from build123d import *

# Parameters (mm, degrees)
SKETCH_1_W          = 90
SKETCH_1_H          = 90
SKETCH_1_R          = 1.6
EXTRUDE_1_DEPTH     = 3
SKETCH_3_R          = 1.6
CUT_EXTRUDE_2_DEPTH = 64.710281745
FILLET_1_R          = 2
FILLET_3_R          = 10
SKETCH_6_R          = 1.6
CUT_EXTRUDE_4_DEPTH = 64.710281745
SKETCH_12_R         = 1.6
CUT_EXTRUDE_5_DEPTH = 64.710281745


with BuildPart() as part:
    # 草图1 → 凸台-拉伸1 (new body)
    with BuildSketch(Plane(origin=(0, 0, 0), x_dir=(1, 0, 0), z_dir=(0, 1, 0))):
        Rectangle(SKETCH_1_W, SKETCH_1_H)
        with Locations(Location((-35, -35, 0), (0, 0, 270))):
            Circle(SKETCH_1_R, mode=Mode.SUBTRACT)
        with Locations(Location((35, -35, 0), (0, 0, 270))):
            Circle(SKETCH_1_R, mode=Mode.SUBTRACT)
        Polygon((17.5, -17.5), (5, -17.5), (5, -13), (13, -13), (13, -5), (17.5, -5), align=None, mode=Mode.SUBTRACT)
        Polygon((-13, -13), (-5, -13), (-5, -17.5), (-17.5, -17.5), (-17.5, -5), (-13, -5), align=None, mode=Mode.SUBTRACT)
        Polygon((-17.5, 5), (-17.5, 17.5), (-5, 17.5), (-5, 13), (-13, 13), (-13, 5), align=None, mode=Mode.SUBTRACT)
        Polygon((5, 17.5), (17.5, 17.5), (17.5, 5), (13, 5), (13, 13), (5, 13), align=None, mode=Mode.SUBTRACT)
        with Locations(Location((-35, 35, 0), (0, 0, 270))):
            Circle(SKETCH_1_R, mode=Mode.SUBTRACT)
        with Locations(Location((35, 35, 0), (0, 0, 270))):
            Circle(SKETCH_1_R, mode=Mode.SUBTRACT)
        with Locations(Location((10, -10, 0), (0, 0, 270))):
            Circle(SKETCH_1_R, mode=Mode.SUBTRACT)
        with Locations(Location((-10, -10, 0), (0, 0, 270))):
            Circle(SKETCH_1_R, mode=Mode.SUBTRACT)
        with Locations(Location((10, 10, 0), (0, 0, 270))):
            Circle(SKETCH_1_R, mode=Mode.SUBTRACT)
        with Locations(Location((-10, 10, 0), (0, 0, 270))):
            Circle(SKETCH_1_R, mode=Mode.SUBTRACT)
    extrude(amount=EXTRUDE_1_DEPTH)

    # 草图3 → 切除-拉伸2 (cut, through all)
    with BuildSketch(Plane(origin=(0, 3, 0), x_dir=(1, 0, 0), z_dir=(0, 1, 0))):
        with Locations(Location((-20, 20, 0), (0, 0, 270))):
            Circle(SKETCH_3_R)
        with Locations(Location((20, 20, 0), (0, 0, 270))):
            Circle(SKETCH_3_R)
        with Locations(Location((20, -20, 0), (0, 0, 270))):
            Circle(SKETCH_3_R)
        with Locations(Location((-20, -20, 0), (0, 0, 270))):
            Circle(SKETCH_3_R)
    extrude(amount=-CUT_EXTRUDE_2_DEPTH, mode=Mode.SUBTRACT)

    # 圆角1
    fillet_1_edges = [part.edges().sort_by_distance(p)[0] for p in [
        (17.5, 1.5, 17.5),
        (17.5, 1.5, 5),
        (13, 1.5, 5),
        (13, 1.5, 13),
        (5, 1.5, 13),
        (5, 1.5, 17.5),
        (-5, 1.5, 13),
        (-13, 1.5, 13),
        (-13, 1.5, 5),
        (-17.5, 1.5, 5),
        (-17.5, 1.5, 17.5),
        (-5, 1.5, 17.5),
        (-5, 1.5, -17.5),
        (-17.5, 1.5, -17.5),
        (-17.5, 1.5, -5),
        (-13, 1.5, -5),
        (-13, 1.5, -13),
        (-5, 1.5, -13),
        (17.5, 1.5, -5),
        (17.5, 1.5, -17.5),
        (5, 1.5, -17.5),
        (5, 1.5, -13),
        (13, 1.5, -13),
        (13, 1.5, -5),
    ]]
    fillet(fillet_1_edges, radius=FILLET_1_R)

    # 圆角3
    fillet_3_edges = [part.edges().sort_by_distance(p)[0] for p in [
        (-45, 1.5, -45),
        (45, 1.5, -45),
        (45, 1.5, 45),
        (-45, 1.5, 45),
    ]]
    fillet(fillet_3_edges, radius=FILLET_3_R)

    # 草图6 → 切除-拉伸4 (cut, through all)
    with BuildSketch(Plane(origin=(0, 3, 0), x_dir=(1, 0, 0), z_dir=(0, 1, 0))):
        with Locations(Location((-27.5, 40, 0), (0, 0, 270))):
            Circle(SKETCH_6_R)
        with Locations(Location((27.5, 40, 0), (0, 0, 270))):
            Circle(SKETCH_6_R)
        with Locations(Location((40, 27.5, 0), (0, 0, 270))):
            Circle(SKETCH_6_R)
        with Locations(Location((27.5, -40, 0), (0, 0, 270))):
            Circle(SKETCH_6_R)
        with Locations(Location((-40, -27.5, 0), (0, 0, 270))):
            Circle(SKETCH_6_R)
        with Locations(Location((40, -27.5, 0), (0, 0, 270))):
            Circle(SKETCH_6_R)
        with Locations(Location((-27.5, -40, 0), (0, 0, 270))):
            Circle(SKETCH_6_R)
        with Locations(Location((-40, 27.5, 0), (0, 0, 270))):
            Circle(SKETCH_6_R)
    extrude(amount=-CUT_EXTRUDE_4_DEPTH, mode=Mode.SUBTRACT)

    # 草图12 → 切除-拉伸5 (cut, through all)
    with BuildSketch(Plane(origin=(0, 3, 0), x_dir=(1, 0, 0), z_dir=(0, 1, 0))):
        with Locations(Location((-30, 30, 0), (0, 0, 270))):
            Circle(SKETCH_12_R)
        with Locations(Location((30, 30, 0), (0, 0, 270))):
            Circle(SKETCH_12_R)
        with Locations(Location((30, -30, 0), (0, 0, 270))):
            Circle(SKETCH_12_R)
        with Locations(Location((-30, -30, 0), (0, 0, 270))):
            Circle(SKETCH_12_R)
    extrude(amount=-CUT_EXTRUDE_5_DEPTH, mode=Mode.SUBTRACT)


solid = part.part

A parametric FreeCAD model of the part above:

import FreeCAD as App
import Part
import Sketcher

V = App.Vector
Q = App.Units.Quantity


def edges_at(feature, points):
    """Names of the edges that pass closest to the given points."""
    edges = feature.Shape.Edges
    near = lambda p: min(range(len(edges)), key=lambda i: edges[i].distToShape(Part.Vertex(*p))[0])
    return sorted({f"Edge{near(p) + 1}" for p in points})

doc = App.newDocument("Part")
body = doc.addObject("PartDesign::Body", "Body")

sketch1 = body.newObject("Sketcher::SketchObject", "Sketch")
sketch1.AttachmentSupport = (doc.getObject("XZ_Plane"), [""])
sketch1.MapMode = "FlatFace"
sketch1.addGeometry(Part.LineSegment(V(-45, -45, 0), V(-45, 45, 0)), False)
sketch1.addGeometry(Part.LineSegment(V(-45, 45, 0), V(45, 45, 0)), False)
sketch1.addGeometry(Part.LineSegment(V(45, 45, 0), V(45, -45, 0)), False)
sketch1.addGeometry(Part.LineSegment(V(45, -45, 0), V(-45, -45, 0)), False)
sketch1.addGeometry(Part.Circle(V(-35, 35, 0), V(0, 0, 1), 1.6), False)
sketch1.addGeometry(Part.LineSegment(V(-13, 5, 0), V(-13, 13, 0)), False)
sketch1.addGeometry(Part.LineSegment(V(-13, 13, 0), V(-5, 13, 0)), False)
sketch1.addGeometry(Part.LineSegment(V(-5, 13, 0), V(-5, 17.5, 0)), False)
sketch1.addGeometry(Part.LineSegment(V(-5, 17.5, 0), V(-17.5, 17.5, 0)), False)
sketch1.addGeometry(Part.LineSegment(V(-17.5, 17.5, 0), V(-17.5, 5, 0)), False)
sketch1.addGeometry(Part.LineSegment(V(-17.5, 5, 0), V(-13, 5, 0)), False)
sketch1.addGeometry(Part.Circle(V(-10, 10, 0), V(0, 0, 1), 1.6), False)
sketch1.addGeometry(Part.Circle(V(35, 35, 0), V(0, 0, 1), 1.6), False)
sketch1.addGeometry(Part.LineSegment(V(17.5, 5, 0), V(17.5, 17.5, 0)), False)
sketch1.addGeometry(Part.LineSegment(V(17.5, 17.5, 0), V(5, 17.5, 0)), False)
sketch1.addGeometry(Part.LineSegment(V(5, 17.5, 0), V(5, 13, 0)), False)
sketch1.addGeometry(Part.LineSegment(V(5, 13, 0), V(13, 13, 0)), False)
sketch1.addGeometry(Part.LineSegment(V(13, 13, 0), V(13, 5, 0)), False)
sketch1.addGeometry(Part.LineSegment(V(13, 5, 0), V(17.5, 5, 0)), False)
sketch1.addGeometry(Part.Circle(V(10, 10, 0), V(0, 0, 1), 1.6), False)
sketch1.addGeometry(Part.Circle(V(-10, -10, 0), V(0, 0, 1), 1.6), False)
sketch1.addGeometry(Part.LineSegment(V(-13, -5, 0), V(-17.5, -5, 0)), False)
sketch1.addGeometry(Part.LineSegment(V(-17.5, -5, 0), V(-17.5, -17.5, 0)), False)
sketch1.addGeometry(Part.LineSegment(V(-17.5, -17.5, 0), V(-5, -17.5, 0)), False)
sketch1.addGeometry(Part.LineSegment(V(-5, -17.5, 0), V(-5, -13, 0)), False)
sketch1.addGeometry(Part.LineSegment(V(-5, -13, 0), V(-13, -13, 0)), False)
sketch1.addGeometry(Part.LineSegment(V(-13, -13, 0), V(-13, -5, 0)), False)
sketch1.addGeometry(Part.Circle(V(-35, -35, 0), V(0, 0, 1), 1.6), False)
sketch1.addGeometry(Part.Circle(V(10, -10, 0), V(0, 0, 1), 1.6), False)
sketch1.addGeometry(Part.LineSegment(V(5, -13, 0), V(5, -17.5, 0)), False)
sketch1.addGeometry(Part.LineSegment(V(5, -17.5, 0), V(17.5, -17.5, 0)), False)
sketch1.addGeometry(Part.LineSegment(V(17.5, -17.5, 0), V(17.5, -5, 0)), False)
sketch1.addGeometry(Part.LineSegment(V(17.5, -5, 0), V(13, -5, 0)), False)
sketch1.addGeometry(Part.LineSegment(V(13, -5, 0), V(13, -13, 0)), False)
sketch1.addGeometry(Part.LineSegment(V(13, -13, 0), V(5, -13, 0)), False)
sketch1.addGeometry(Part.Circle(V(35, -35, 0), V(0, 0, 1), 1.6), False)
sketch1.addConstraint(Sketcher.Constraint("Coincident", 0, 2, 1, 1))
sketch1.addConstraint(Sketcher.Constraint("Coincident", 1, 2, 2, 1))
sketch1.addConstraint(Sketcher.Constraint("Coincident", 2, 2, 3, 1))
sketch1.addConstraint(Sketcher.Constraint("Coincident", 3, 2, 0, 1))
sketch1.addConstraint(Sketcher.Constraint("Coincident", 5, 2, 6, 1))
sketch1.addConstraint(Sketcher.Constraint("Coincident", 6, 2, 7, 1))
sketch1.addConstraint(Sketcher.Constraint("Coincident", 7, 2, 8, 1))
sketch1.addConstraint(Sketcher.Constraint("Coincident", 8, 2, 9, 1))
sketch1.addConstraint(Sketcher.Constraint("Coincident", 9, 2, 10, 1))
sketch1.addConstraint(Sketcher.Constraint("Coincident", 10, 2, 5, 1))
sketch1.addConstraint(Sketcher.Constraint("Coincident", 13, 2, 14, 1))
sketch1.addConstraint(Sketcher.Constraint("Coincident", 14, 2, 15, 1))
sketch1.addConstraint(Sketcher.Constraint("Coincident", 15, 2, 16, 1))
sketch1.addConstraint(Sketcher.Constraint("Coincident", 16, 2, 17, 1))
sketch1.addConstraint(Sketcher.Constraint("Coincident", 17, 2, 18, 1))
sketch1.addConstraint(Sketcher.Constraint("Coincident", 18, 2, 13, 1))
sketch1.addConstraint(Sketcher.Constraint("Coincident", 21, 2, 22, 1))
sketch1.addConstraint(Sketcher.Constraint("Coincident", 22, 2, 23, 1))
sketch1.addConstraint(Sketcher.Constraint("Coincident", 23, 2, 24, 1))
sketch1.addConstraint(Sketcher.Constraint("Coincident", 24, 2, 25, 1))
sketch1.addConstraint(Sketcher.Constraint("Coincident", 25, 2, 26, 1))
sketch1.addConstraint(Sketcher.Constraint("Coincident", 26, 2, 21, 1))
sketch1.addConstraint(Sketcher.Constraint("Coincident", 29, 2, 30, 1))
sketch1.addConstraint(Sketcher.Constraint("Coincident", 30, 2, 31, 1))
sketch1.addConstraint(Sketcher.Constraint("Coincident", 31, 2, 32, 1))
sketch1.addConstraint(Sketcher.Constraint("Coincident", 32, 2, 33, 1))
sketch1.addConstraint(Sketcher.Constraint("Coincident", 33, 2, 34, 1))
sketch1.addConstraint(Sketcher.Constraint("Coincident", 34, 2, 29, 1))
sketch1.addConstraint(Sketcher.Constraint("Vertical", 0))
sketch1.addConstraint(Sketcher.Constraint("Horizontal", 1))
sketch1.addConstraint(Sketcher.Constraint("Vertical", 2))
sketch1.addConstraint(Sketcher.Constraint("Horizontal", 3))
sketch1.addConstraint(Sketcher.Constraint("Vertical", 5))
sketch1.addConstraint(Sketcher.Constraint("Horizontal", 6))
sketch1.addConstraint(Sketcher.Constraint("Vertical", 7))
sketch1.addConstraint(Sketcher.Constraint("Horizontal", 8))
sketch1.addConstraint(Sketcher.Constraint("Vertical", 9))
sketch1.addConstraint(Sketcher.Constraint("Horizontal", 10))
sketch1.addConstraint(Sketcher.Constraint("Vertical", 13))
sketch1.addConstraint(Sketcher.Constraint("Horizontal", 14))
sketch1.addConstraint(Sketcher.Constraint("Vertical", 15))
sketch1.addConstraint(Sketcher.Constraint("Horizontal", 16))
sketch1.addConstraint(Sketcher.Constraint("Vertical", 17))
sketch1.addConstraint(Sketcher.Constraint("Horizontal", 18))
sketch1.addConstraint(Sketcher.Constraint("Horizontal", 21))
sketch1.addConstraint(Sketcher.Constraint("Vertical", 22))
sketch1.addConstraint(Sketcher.Constraint("Horizontal", 23))
sketch1.addConstraint(Sketcher.Constraint("Vertical", 24))
sketch1.addConstraint(Sketcher.Constraint("Horizontal", 25))
sketch1.addConstraint(Sketcher.Constraint("Vertical", 26))
sketch1.addConstraint(Sketcher.Constraint("Vertical", 29))
sketch1.addConstraint(Sketcher.Constraint("Horizontal", 30))
sketch1.addConstraint(Sketcher.Constraint("Vertical", 31))
sketch1.addConstraint(Sketcher.Constraint("Horizontal", 32))
sketch1.addConstraint(Sketcher.Constraint("Vertical", 33))
sketch1.addConstraint(Sketcher.Constraint("Horizontal", 34))
sketch1.addConstraint(Sketcher.Constraint("Equal", 4, 11))
sketch1.addConstraint(Sketcher.Constraint("Equal", 11, 12))
sketch1.addConstraint(Sketcher.Constraint("Equal", 12, 19))
sketch1.addConstraint(Sketcher.Constraint("Equal", 19, 20))
sketch1.addConstraint(Sketcher.Constraint("Equal", 20, 27))
sketch1.addConstraint(Sketcher.Constraint("Equal", 27, 28))
sketch1.addConstraint(Sketcher.Constraint("Equal", 28, 35))
sketch1.addConstraint(Sketcher.Constraint("Symmetric", 19, 3, 20, 3, -1, 1))
sketch1.addConstraint(Sketcher.Constraint("Symmetric", 12, 3, 27, 3, -1, 1))
sketch1.addConstraint(Sketcher.Constraint("Symmetric", 11, 3, 28, 3, -1, 1))
sketch1.addConstraint(Sketcher.Constraint("Symmetric", 4, 3, 35, 3, -1, 1))
sketch1.addConstraint(Sketcher.Constraint("Symmetric", 0, 2, 2, 2, -1, 1))
sketch1.addConstraint(Sketcher.Constraint("Symmetric", 18, 2, 21, 2, -1, 1))
sketch1.addConstraint(Sketcher.Constraint("Symmetric", 14, 2, 23, 2, -1, 1))
sketch1.addConstraint(Sketcher.Constraint("Symmetric", 16, 2, 25, 2, -1, 1))
sketch1.addConstraint(Sketcher.Constraint("Symmetric", 7, 2, 29, 2, -1, 1))
sketch1.addConstraint(Sketcher.Constraint("Symmetric", 9, 2, 31, 2, -1, 1))
sketch1.addConstraint(Sketcher.Constraint("Symmetric", 5, 2, 33, 2, -1, 1))
sketch1.addConstraint(Sketcher.Constraint("Symmetric", 4, 3, 12, 3, -2))
sketch1.addConstraint(Sketcher.Constraint("Symmetric", 11, 3, 19, 3, -2))
sketch1.addConstraint(Sketcher.Constraint("Symmetric", 8, 2, 13, 2, -2))
sketch1.addConstraint(Sketcher.Constraint("Symmetric", 6, 2, 15, 2, -2))
sketch1.addConstraint(Sketcher.Constraint("Symmetric", 10, 2, 17, 2, -2))
sketch1.addConstraint(Sketcher.Constraint("Equal", 3, 0))
sketch1.addConstraint(Sketcher.Constraint("Equal", 34, 5))
sketch1.addConstraint(Sketcher.Constraint("Equal", 32, 7))
sketch1.addConstraint(Sketcher.Constraint("Diameter", 4, Q("3.2 mm")))
sketch1.addConstraint(Sketcher.Constraint("DistanceX", 1, 1, 1, 2, Q("90 mm")))
sketch1.addConstraint(Sketcher.Constraint("DistanceX", 6, 1, 6, 2, Q("8 mm")))
sketch1.addConstraint(Sketcher.Constraint("DistanceX", 8, 2, 8, 1, Q("12.5 mm")))
sketch1.addConstraint(Sketcher.Constraint("DistanceX", 4, 3, -1, 1, Q("35 mm")))
sketch1.addConstraint(Sketcher.Constraint("DistanceY", -1, 1, 4, 3, Q("35 mm")))
sketch1.addConstraint(Sketcher.Constraint("DistanceX", 11, 3, -1, 1, Q("10 mm")))
sketch1.addConstraint(Sketcher.Constraint("DistanceY", -1, 1, 11, 3, Q("10 mm")))
sketch1.addConstraint(Sketcher.Constraint("DistanceX", 5, 2, -1, 1, Q("13 mm")))
sketch1.addConstraint(Sketcher.Constraint("DistanceY", -1, 1, 5, 2, Q("13 mm")))
pad1 = body.newObject("PartDesign::Pad", "Pad")
pad1.Profile = sketch1
pad1.Length = 3
pad1.Reversed = True

sketch2 = body.newObject("Sketcher::SketchObject", "Sketch001")
sketch2.AttachmentSupport = (doc.getObject("XZ_Plane"), [""])
sketch2.MapMode = "FlatFace"
sketch2.AttachmentOffset = App.Placement(V(0, 0, -3), App.Rotation())
sketch2.addGeometry(Part.Circle(V(-20, -20, 0), V(0, 0, 1), 1.6), False)
sketch2.addGeometry(Part.Circle(V(20, -20, 0), V(0, 0, 1), 1.6), False)
sketch2.addGeometry(Part.Circle(V(20, 20, 0), V(0, 0, 1), 1.6), False)
sketch2.addGeometry(Part.Circle(V(-20, 20, 0), V(0, 0, 1), 1.6), False)
sketch2.addConstraint(Sketcher.Constraint("Equal", 0, 1))
sketch2.addConstraint(Sketcher.Constraint("Equal", 1, 2))
sketch2.addConstraint(Sketcher.Constraint("Equal", 2, 3))
sketch2.addConstraint(Sketcher.Constraint("Symmetric", 0, 3, 2, 3, -1, 1))
sketch2.addConstraint(Sketcher.Constraint("Symmetric", 1, 3, 3, 3, -1, 1))
sketch2.addConstraint(Sketcher.Constraint("Symmetric", 0, 3, 1, 3, -2))
sketch2.addConstraint(Sketcher.Constraint("Diameter", 0, Q("3.2 mm")))
sketch2.addConstraint(Sketcher.Constraint("DistanceX", 0, 3, -1, 1, Q("20 mm")))
sketch2.addConstraint(Sketcher.Constraint("DistanceY", 0, 3, -1, 1, Q("20 mm")))
pocket1 = body.newObject("PartDesign::Pocket", "Pocket")
pocket1.Profile = sketch2
pocket1.Type = "ThroughAll"
pocket1.Reversed = True
doc.recompute()

fillet = body.newObject("PartDesign::Fillet", "Fillet")
fillet.Base = (pocket1, edges_at(pocket1, [
    (17.5, 1.5, 17.5),
    (17.5, 1.5, 5),
    (13, 1.5, 5),
    (13, 1.5, 13),
    (5, 1.5, 13),
    (5, 1.5, 17.5),
    (-5, 1.5, 13),
    (-13, 1.5, 13),
    (-13, 1.5, 5),
    (-17.5, 1.5, 5),
    (-17.5, 1.5, 17.5),
    (-5, 1.5, 17.5),
    (-5, 1.5, -17.5),
    (-17.5, 1.5, -17.5),
    (-17.5, 1.5, -5),
    (-13, 1.5, -5),
    (-13, 1.5, -13),
    (-5, 1.5, -13),
    (17.5, 1.5, -5),
    (17.5, 1.5, -17.5),
    (5, 1.5, -17.5),
    (5, 1.5, -13),
    (13, 1.5, -13),
    (13, 1.5, -5),
]))
fillet.Radius = 2
doc.recompute()

fillet2 = body.newObject("PartDesign::Fillet", "Fillet001")
fillet2.Base = (fillet, edges_at(fillet, [
    (-45, 1.5, -45),
    (45, 1.5, -45),
    (45, 1.5, 45),
    (-45, 1.5, 45),
]))
fillet2.Radius = 10

sketch3 = body.newObject("Sketcher::SketchObject", "Sketch002")
sketch3.AttachmentSupport = (doc.getObject("XZ_Plane"), [""])
sketch3.MapMode = "FlatFace"
sketch3.AttachmentOffset = App.Placement(V(0, 0, -3), App.Rotation())
sketch3.addGeometry(Part.Circle(V(-27.5, -40, 0), V(0, 0, 1), 1.6), False)
sketch3.addGeometry(Part.Circle(V(27.5, -40, 0), V(0, 0, 1), 1.6), False)
sketch3.addGeometry(Part.Circle(V(40, -27.5, 0), V(0, 0, 1), 1.6), False)
sketch3.addGeometry(Part.Circle(V(27.5, 40, 0), V(0, 0, 1), 1.6), False)
sketch3.addGeometry(Part.Circle(V(-40, 27.5, 0), V(0, 0, 1), 1.6), False)
sketch3.addGeometry(Part.Circle(V(40, 27.5, 0), V(0, 0, 1), 1.6), False)
sketch3.addGeometry(Part.Circle(V(-27.5, 40, 0), V(0, 0, 1), 1.6), False)
sketch3.addGeometry(Part.Circle(V(-40, -27.5, 0), V(0, 0, 1), 1.6), False)
sketch3.addConstraint(Sketcher.Constraint("Equal", 0, 1))
sketch3.addConstraint(Sketcher.Constraint("Equal", 1, 2))
sketch3.addConstraint(Sketcher.Constraint("Equal", 2, 3))
sketch3.addConstraint(Sketcher.Constraint("Equal", 3, 4))
sketch3.addConstraint(Sketcher.Constraint("Equal", 4, 5))
sketch3.addConstraint(Sketcher.Constraint("Equal", 5, 6))
sketch3.addConstraint(Sketcher.Constraint("Equal", 6, 7))
sketch3.addConstraint(Sketcher.Constraint("Symmetric", 0, 3, 3, 3, -1, 1))
sketch3.addConstraint(Sketcher.Constraint("Symmetric", 2, 3, 4, 3, -1, 1))
sketch3.addConstraint(Sketcher.Constraint("Symmetric", 1, 3, 6, 3, -1, 1))
sketch3.addConstraint(Sketcher.Constraint("Symmetric", 5, 3, 7, 3, -1, 1))
sketch3.addConstraint(Sketcher.Constraint("Symmetric", 0, 3, 1, 3, -2))
sketch3.addConstraint(Sketcher.Constraint("Symmetric", 4, 3, 5, 3, -2))
sketch3.addConstraint(Sketcher.Constraint("Diameter", 0, Q("3.2 mm")))
sketch3.addConstraint(Sketcher.Constraint("DistanceY", 0, 3, -1, 1, Q("40 mm")))
sketch3.addConstraint(Sketcher.Constraint("DistanceX", -1, 1, 2, 3, Q("40 mm")))
sketch3.addConstraint(Sketcher.Constraint("DistanceX", 0, 3, 1, 3, Q("55 mm")))
sketch3.addConstraint(Sketcher.Constraint("DistanceY", 2, 3, 4, 3, Q("55 mm")))
pocket2 = body.newObject("PartDesign::Pocket", "Pocket001")
pocket2.Profile = sketch3
pocket2.Type = "ThroughAll"
pocket2.Reversed = True

sketch4 = body.newObject("Sketcher::SketchObject", "Sketch003")
sketch4.AttachmentSupport = (doc.getObject("XZ_Plane"), [""])
sketch4.MapMode = "FlatFace"
sketch4.AttachmentOffset = App.Placement(V(0, 0, -3), App.Rotation())
sketch4.addGeometry(Part.Circle(V(-30, -30, 0), V(0, 0, 1), 1.6), False)
sketch4.addGeometry(Part.Circle(V(30, -30, 0), V(0, 0, 1), 1.6), False)
sketch4.addGeometry(Part.Circle(V(30, 30, 0), V(0, 0, 1), 1.6), False)
sketch4.addGeometry(Part.Circle(V(-30, 30, 0), V(0, 0, 1), 1.6), False)
sketch4.addConstraint(Sketcher.Constraint("Equal", 0, 1))
sketch4.addConstraint(Sketcher.Constraint("Equal", 1, 2))
sketch4.addConstraint(Sketcher.Constraint("Equal", 2, 3))
sketch4.addConstraint(Sketcher.Constraint("Symmetric", 0, 3, 2, 3, -1, 1))
sketch4.addConstraint(Sketcher.Constraint("Symmetric", 1, 3, 3, 3, -1, 1))
sketch4.addConstraint(Sketcher.Constraint("Symmetric", 0, 3, 1, 3, -2))
sketch4.addConstraint(Sketcher.Constraint("Diameter", 0, Q("3.2 mm")))
sketch4.addConstraint(Sketcher.Constraint("DistanceX", 0, 3, -1, 1, Q("30 mm")))
sketch4.addConstraint(Sketcher.Constraint("DistanceY", 0, 3, -1, 1, Q("30 mm")))
pocket3 = body.newObject("PartDesign::Pocket", "Pocket002")
pocket3.Profile = sketch4
pocket3.Type = "ThroughAll"
pocket3.Reversed = True

doc.recompute()
